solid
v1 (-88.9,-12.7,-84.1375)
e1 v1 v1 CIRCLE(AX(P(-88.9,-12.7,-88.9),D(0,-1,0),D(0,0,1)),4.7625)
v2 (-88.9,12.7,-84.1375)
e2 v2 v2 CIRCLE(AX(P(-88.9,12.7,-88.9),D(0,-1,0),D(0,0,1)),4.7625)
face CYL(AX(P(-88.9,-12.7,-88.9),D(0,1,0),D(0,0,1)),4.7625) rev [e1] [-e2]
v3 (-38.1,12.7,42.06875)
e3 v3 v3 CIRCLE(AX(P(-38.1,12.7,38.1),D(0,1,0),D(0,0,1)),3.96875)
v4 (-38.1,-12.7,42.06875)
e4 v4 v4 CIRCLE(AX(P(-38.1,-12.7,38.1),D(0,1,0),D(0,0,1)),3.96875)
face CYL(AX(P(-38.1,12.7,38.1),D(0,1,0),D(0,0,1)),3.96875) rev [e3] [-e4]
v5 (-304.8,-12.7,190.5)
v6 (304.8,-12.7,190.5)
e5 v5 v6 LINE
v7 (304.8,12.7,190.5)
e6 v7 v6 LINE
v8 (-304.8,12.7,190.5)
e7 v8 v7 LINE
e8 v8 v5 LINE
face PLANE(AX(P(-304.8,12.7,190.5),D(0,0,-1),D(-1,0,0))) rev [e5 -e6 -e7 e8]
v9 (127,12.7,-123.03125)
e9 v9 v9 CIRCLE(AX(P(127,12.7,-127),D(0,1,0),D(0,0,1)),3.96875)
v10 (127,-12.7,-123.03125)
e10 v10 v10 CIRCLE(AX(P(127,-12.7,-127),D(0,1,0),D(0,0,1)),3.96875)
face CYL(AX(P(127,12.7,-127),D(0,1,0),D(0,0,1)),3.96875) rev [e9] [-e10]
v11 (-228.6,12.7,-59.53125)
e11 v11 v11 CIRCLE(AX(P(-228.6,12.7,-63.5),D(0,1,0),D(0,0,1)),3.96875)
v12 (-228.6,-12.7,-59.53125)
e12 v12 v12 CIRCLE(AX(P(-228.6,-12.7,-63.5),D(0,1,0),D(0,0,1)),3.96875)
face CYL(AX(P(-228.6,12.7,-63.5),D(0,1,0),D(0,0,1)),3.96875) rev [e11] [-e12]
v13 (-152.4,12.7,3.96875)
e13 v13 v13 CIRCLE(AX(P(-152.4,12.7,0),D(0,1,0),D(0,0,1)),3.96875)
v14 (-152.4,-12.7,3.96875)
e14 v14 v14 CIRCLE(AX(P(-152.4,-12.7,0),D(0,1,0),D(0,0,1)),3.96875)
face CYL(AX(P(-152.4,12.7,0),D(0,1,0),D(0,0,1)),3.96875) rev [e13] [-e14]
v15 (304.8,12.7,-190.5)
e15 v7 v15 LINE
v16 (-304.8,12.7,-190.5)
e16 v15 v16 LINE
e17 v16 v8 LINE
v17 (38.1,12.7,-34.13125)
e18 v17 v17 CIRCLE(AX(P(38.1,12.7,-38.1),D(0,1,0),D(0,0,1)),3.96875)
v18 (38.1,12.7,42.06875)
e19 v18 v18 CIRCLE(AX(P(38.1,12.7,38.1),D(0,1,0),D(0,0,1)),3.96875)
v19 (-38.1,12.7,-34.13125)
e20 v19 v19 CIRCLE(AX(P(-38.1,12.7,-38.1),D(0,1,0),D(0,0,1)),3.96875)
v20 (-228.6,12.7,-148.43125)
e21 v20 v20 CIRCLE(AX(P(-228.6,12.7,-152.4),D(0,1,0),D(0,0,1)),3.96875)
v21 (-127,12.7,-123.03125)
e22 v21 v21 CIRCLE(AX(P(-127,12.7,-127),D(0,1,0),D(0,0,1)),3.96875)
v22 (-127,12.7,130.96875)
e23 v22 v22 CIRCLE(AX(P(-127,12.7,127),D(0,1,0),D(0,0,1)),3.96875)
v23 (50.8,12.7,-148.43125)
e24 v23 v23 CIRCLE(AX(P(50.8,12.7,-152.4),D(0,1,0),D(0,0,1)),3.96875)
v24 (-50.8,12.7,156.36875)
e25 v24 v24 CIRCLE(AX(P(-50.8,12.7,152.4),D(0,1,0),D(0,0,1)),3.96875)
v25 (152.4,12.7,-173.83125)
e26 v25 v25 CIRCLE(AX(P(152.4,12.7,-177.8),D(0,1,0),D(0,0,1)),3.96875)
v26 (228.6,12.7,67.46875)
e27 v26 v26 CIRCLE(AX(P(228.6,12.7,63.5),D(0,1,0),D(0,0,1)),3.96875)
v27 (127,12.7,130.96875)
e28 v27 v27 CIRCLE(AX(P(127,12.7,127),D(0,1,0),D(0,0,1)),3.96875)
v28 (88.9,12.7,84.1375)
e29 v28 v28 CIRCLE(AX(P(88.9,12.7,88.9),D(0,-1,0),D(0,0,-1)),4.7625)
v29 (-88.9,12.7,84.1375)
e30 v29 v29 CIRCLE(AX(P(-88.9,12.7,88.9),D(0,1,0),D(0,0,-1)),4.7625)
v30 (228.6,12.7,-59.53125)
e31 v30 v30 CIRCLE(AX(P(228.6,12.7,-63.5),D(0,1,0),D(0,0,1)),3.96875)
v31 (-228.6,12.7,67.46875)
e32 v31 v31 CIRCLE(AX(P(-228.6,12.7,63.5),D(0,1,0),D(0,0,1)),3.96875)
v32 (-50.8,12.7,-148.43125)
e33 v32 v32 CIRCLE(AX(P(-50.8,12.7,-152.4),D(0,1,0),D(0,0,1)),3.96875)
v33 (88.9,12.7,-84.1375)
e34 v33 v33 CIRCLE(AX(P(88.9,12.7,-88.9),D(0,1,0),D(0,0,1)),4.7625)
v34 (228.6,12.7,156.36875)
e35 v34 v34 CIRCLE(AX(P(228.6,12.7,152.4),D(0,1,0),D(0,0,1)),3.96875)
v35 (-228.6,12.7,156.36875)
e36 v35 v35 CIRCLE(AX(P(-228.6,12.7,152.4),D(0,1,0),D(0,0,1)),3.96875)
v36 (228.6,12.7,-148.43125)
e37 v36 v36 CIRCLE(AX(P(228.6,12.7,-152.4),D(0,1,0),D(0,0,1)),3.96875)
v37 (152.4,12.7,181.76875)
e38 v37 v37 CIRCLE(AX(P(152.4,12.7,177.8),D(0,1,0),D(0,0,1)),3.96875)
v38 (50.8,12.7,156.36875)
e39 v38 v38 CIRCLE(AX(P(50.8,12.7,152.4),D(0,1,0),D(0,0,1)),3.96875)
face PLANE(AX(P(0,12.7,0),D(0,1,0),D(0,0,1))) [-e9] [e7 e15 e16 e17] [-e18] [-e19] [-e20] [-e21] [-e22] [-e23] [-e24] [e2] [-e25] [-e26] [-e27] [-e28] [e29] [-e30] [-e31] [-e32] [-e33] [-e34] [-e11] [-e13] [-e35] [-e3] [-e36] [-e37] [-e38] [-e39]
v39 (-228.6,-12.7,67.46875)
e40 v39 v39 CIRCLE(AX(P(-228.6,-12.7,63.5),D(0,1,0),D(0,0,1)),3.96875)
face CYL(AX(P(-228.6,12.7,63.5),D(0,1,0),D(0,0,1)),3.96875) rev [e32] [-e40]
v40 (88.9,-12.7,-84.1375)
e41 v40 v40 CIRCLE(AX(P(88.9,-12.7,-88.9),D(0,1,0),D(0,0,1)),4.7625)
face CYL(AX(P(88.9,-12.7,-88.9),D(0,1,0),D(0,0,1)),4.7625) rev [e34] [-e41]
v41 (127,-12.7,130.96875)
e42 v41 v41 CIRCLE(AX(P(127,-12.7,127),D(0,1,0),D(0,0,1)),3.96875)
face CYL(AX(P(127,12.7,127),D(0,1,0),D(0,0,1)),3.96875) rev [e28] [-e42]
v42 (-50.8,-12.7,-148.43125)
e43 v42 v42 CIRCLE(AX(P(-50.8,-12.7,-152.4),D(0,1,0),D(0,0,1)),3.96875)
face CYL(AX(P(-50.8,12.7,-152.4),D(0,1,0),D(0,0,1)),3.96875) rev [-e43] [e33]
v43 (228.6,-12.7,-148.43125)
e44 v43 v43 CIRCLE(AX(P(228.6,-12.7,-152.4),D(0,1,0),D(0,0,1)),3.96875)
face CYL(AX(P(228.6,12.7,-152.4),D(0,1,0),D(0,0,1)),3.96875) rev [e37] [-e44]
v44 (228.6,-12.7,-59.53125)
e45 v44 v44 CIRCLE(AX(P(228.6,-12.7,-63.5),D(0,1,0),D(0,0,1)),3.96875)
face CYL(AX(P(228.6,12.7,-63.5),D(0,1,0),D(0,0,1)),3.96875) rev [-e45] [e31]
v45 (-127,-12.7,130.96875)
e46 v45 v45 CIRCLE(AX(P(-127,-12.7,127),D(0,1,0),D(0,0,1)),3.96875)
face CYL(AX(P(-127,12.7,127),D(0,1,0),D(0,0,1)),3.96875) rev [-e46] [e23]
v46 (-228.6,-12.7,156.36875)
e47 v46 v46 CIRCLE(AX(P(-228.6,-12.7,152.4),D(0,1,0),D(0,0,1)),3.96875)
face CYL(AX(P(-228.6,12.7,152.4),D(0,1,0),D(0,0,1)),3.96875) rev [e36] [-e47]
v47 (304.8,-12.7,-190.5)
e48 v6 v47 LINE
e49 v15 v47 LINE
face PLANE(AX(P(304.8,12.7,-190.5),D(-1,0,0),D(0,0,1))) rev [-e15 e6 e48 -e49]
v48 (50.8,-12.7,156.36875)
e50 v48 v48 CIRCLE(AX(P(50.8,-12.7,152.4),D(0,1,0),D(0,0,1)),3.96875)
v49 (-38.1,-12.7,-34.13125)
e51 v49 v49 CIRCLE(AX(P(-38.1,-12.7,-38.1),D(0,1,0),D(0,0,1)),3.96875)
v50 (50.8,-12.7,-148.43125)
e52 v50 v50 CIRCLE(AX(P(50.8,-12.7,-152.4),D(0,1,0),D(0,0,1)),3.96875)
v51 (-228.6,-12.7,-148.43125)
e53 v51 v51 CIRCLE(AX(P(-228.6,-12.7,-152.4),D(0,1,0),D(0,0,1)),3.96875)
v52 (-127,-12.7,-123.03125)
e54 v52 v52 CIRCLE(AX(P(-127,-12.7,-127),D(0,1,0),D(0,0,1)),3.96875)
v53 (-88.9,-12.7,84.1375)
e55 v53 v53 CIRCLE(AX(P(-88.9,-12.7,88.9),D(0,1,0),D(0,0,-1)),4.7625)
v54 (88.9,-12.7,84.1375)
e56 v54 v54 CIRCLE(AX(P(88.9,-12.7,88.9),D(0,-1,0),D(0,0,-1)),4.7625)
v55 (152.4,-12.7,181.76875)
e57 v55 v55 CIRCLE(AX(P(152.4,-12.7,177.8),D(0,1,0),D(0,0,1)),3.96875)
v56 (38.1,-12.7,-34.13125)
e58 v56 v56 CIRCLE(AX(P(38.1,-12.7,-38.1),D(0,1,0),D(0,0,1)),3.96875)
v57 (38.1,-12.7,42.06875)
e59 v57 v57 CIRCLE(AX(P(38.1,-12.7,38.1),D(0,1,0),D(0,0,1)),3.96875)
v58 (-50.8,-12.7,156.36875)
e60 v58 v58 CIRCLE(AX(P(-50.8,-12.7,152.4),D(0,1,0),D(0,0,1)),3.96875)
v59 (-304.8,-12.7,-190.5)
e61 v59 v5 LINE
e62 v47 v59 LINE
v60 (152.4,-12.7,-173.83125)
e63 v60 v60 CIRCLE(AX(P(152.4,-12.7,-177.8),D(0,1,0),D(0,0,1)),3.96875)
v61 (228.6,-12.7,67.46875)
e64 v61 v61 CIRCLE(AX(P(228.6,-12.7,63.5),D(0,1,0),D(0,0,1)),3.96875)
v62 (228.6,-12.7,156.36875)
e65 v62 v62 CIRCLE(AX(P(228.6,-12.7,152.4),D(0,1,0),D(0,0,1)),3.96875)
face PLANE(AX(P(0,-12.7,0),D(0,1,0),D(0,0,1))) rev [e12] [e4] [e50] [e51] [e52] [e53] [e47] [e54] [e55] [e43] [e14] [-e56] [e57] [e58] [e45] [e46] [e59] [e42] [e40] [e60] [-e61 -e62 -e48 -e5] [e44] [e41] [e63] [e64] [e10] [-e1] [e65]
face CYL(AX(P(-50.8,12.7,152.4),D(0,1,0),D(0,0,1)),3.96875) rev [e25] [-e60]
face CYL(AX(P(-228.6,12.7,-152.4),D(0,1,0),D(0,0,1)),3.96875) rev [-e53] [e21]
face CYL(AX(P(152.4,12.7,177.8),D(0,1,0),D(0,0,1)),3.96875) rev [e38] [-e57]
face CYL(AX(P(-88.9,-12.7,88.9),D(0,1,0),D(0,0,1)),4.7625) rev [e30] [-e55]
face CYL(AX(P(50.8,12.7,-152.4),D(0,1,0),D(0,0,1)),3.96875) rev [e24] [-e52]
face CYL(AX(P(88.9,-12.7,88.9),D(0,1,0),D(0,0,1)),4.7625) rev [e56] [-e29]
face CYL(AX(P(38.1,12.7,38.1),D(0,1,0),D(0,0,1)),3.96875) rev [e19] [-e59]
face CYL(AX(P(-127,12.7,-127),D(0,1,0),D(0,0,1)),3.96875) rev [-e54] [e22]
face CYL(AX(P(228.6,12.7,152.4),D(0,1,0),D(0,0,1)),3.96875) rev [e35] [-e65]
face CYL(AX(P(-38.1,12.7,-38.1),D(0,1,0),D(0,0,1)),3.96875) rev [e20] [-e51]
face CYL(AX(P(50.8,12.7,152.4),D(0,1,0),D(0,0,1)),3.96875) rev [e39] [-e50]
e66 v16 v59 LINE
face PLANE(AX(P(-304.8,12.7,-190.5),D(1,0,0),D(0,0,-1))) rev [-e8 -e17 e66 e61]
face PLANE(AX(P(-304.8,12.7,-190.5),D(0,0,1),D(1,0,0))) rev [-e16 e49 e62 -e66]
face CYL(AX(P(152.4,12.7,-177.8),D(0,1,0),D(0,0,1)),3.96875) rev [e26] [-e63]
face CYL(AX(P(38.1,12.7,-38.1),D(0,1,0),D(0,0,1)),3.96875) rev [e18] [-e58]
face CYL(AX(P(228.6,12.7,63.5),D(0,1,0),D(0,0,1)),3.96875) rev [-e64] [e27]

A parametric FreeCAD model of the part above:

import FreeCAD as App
import Part
import Sketcher
from FreeCAD import Vector
Q = App.Units.Quantity

doc = App.newDocument("Part")
body = doc.addObject("PartDesign::Body", "Body")

# Sketch on XZ plane
sketch1 = doc.addObject("Sketcher::SketchObject", "Sketch")
body.addObject(sketch1)
sketch1.AttachmentSupport = (doc.XZ_Plane, [""])
sketch1.MapMode = "FlatFace"
sketch1.addGeometry(Part.LineSegment(Vector(-305, -190, 0), Vector(-305, 190, 0)), False)
sketch1.addGeometry(Part.LineSegment(Vector(-305, 190, 0), Vector(305, 190, 0)), False)
sketch1.addGeometry(Part.LineSegment(Vector(305, 190, 0), Vector(305, -190, 0)), False)
sketch1.addGeometry(Part.LineSegment(Vector(305, -190, 0), Vector(-305, -190, 0)), False)
sketch1.addConstraint(Sketcher.Constraint("Coincident", 0, 2, 1, 1))
sketch1.addConstraint(Sketcher.Constraint("Coincident", 1, 2, 2, 1))
sketch1.addConstraint(Sketcher.Constraint("Coincident", 2, 2, 3, 1))
sketch1.addConstraint(Sketcher.Constraint("Coincident", 3, 2, 0, 1))
sketch1.addConstraint(Sketcher.Constraint("Vertical", 0))
sketch1.addConstraint(Sketcher.Constraint("Horizontal", 1))
sketch1.addConstraint(Sketcher.Constraint("Vertical", 2))
sketch1.addConstraint(Sketcher.Constraint("Horizontal", 3))
sketch1.addConstraint(Sketcher.Constraint("Symmetric", 0, 2, 2, 2, -1, 1))
sketch1.addConstraint(Sketcher.Constraint("DistanceX", 1, 1, 1, 2, Q("24 in")))
sketch1.addConstraint(Sketcher.Constraint("DistanceY", 0, 1, 0, 2, Q("15 in")))
pad1 = doc.addObject("PartDesign::Pad", "Pad")
body.addObject(pad1)
pad1.Profile = sketch1
pad1.Length = Q("1 in")
pad1.Midplane = True

# Sketch on XZ plane
sketch2 = doc.addObject("Sketcher::SketchObject", "Sketch001")
body.addObject(sketch2)
sketch2.AttachmentSupport = (doc.XZ_Plane, [""])
sketch2.MapMode = "FlatFace"
sketch2.AttachmentOffset = App.Placement(Vector(0, 0, -0.5 * 25.4), App.Rotation())
sketch2.addGeometry(Part.Circle(Vector(88.9, -88.9, 0), Vector(0, 0, 1), 4.8), False)
sketch2.addConstraint(Sketcher.Constraint("Diameter", 0, Q("0.375 in")))
sketch2.addConstraint(Sketcher.Constraint("DistanceX", -1, 1, 0, 3, Q("3.5 in")))
sketch2.addConstraint(Sketcher.Constraint("DistanceY", 0, 3, -1, 1, Q("3.5 in")))
pocket1 = doc.addObject("PartDesign::Pocket", "Pocket")
body.addObject(pocket1)
pocket1.Profile = sketch2
pocket1.Type = "ThroughAll"
pocket1.Reversed = True

# Sketch on XZ plane
sketch3 = doc.addObject("Sketcher::SketchObject", "Sketch002")
body.addObject(sketch3)
sketch3.AttachmentSupport = (doc.XZ_Plane, [""])
sketch3.MapMode = "FlatFace"
sketch3.AttachmentOffset = App.Placement(Vector(0, 0, -0.5 * 25.4), App.Rotation())
sketch3.addGeometry(Part.Circle(Vector(127, -127, 0), Vector(0, 0, 1), 4), False)
sketch3.addGeometry(Part.Circle(Vector(38.1, -38.1, 0), Vector(0, 0, 1), 4), False)
sketch3.addGeometry(Part.Circle(Vector(228.6, -63.5, 0), Vector(0, 0, 1), 4), False)
sketch3.addGeometry(Part.Circle(Vector(228.6, -152.4, 0), Vector(0, 0, 1), 4), False)
sketch3.addGeometry(Part.Circle(Vector(50.8, -152.4, 0), Vector(0, 0, 1), 4), False)
sketch3.addConstraint(Sketcher.Constraint("Equal", 0, 1))
sketch3.addConstraint(Sketcher.Constraint("Equal", 1, 2))
sketch3.addConstraint(Sketcher.Constraint("Equal", 2, 3))
sketch3.addConstraint(Sketcher.Constraint("Equal", 3, 4))
sketch3.addConstraint(Sketcher.Constraint("Horizontal", 3, 3, 4, 3))
sketch3.addConstraint(Sketcher.Constraint("Vertical", 2, 3, 3, 3))
sketch3.addConstraint(Sketcher.Constraint("Diameter", 0, Q("0.3125 in")))
sketch3.addConstraint(Sketcher.Constraint("DistanceX", -1, 1, 0, 3, Q("5 in")))
sketch3.addConstraint(Sketcher.Constraint("DistanceY", 0, 3, -1, 1, Q("5 in")))
sketch3.addConstraint(Sketcher.Constraint("DistanceX", -1, 1, 2, 3, Q("9 in")))
sketch3.addConstraint(Sketcher.Constraint("DistanceY", 3, 3, -1, 1, Q("6 in")))
sketch3.addConstraint(Sketcher.Constraint("DistanceX", -1, 1, 4, 3, Q("2 in")))
sketch3.addConstraint(Sketcher.Constraint("DistanceY", 2, 3, 1, 3, Q("1 in")))
sketch3.addConstraint(Sketcher.Constraint("DistanceX", -1, 1, 1, 3, Q("1.5 in")))
sketch3.addConstraint(Sketcher.Constraint("DistanceY", 1, 3, -1, 1, Q("1.5 in")))
doc.recompute()
hole = doc.addObject("PartDesign::Hole", "Hole")
body.addObject(hole)
hole.Profile = sketch3
hole.ThreadType = "None"
hole.Diameter = Q("0.3125 in")
hole.DepthType = "Dimension"
hole.Depth = 25.401
hole.DrillPoint = "Flat"
hole.Reversed = True

# Sketch on XZ plane
sketch4 = doc.addObject("Sketcher::SketchObject", "Sketch003")
body.addObject(sketch4)
sketch4.AttachmentSupport = (doc.XZ_Plane, [""])
sketch4.MapMode = "FlatFace"
sketch4.AttachmentOffset = App.Placement(Vector(0, 0, -0.5 * 25.4), App.Rotation())
sketch4.addGeometry(Part.Circle(Vector(152.4, -177.8, 0), Vector(0, 0, 1), 4), False)
sketch4.addGeometry(Part.Circle(Vector(152.4, 177.8, 0), Vector(0, 0, 1), 4), False)
sketch4.addGeometry(Part.Circle(Vector(-152.4, 0, 0), Vector(0, 0, 1), 4), False)
sketch4.addConstraint(Sketcher.Constraint("Equal", 0, 1))
sketch4.addConstraint(Sketcher.Constraint("Equal", 1, 2))
sketch4.addConstraint(Sketcher.Constraint("Symmetric", 0, 3, 1, 3, -1))
sketch4.addConstraint(Sketcher.Constraint("PointOnObject", 2, 3, -1))
sketch4.addConstraint(Sketcher.Constraint("Diameter", 0, Q("0.3125 in")))
sketch4.addConstraint(Sketcher.Constraint("DistanceX", -1, 1, 0, 3, Q("6 in")))
sketch4.addConstraint(Sketcher.Constraint("DistanceY", 0, 3, -1, 1, Q("7 in")))
sketch4.addConstraint(Sketcher.Constraint("DistanceX", 2, 3, -1, 1, Q("6 in")))
doc.recompute()
hole2 = doc.addObject("PartDesign::Hole", "Hole001")
body.addObject(hole2)
hole2.Profile = sketch4
hole2.ThreadType = "None"
hole2.Diameter = Q("0.3125 in")
hole2.DepthType = "Dimension"
hole2.Depth = Q("1 in")
hole2.DrillPoint = "Flat"
hole2.Reversed = True
doc.recompute()

mirrored = doc.addObject("PartDesign::Mirrored", "Mirrored")
body.addObject(mirrored)
mirrored.Originals = [pocket1, hole]
mirrored.MirrorPlane = (doc.XY_Plane, [""])
body.Tip = mirrored
doc.recompute()

mirrored2 = doc.addObject("PartDesign::Mirrored", "Mirrored001")
body.addObject(mirrored2)
mirrored2.Originals = [hole, pocket1]
mirrored2.MirrorPlane = (doc.YZ_Plane, [""])
body.Tip = mirrored2

# Sketch on XZ plane
sketch5 = doc.addObject("Sketcher::SketchObject", "Sketch004")
body.addObject(sketch5)
sketch5.AttachmentSupport = (doc.XZ_Plane, [""])
sketch5.MapMode = "FlatFace"
sketch5.AttachmentOffset = App.Placement(Vector(0, 0, -0.5 * 25.4), App.Rotation())
sketch5.addGeometry(Part.Circle(Vector(-88.9, 88.9, 0), Vector(0, 0, 1), 4.8), False)
sketch5.addConstraint(Sketcher.Constraint("Diameter", 0, Q("0.375 in")))
sketch5.addConstraint(Sketcher.Constraint("DistanceX", 0, 3, -1, 1, Q("3.5 in")))
sketch5.addConstraint(Sketcher.Constraint("DistanceY", -1, 1, 0, 3, Q("3.5 in")))
pocket2 = doc.addObject("PartDesign::Pocket", "Pocket001")
body.addObject(pocket2)
pocket2.Profile = sketch5
pocket2.Type = "ThroughAll"
pocket2.Reversed = True

# Sketch on XZ plane
sketch6 = doc.addObject("Sketcher::SketchObject", "Sketch005")
body.addObject(sketch6)
sketch6.AttachmentSupport = (doc.XZ_Plane, [""])
sketch6.MapMode = "FlatFace"
sketch6.AttachmentOffset = App.Placement(Vector(0, 0, -0.5 * 25.4), App.Rotation())
sketch6.addGeometry(Part.Circle(Vector(-127, 127, 0), Vector(0, 0, 1), 4), False)
sketch6.addGeometry(Part.Circle(Vector(-38.1, 38.1, 0), Vector(0, 0, 1), 4), False)
sketch6.addGeometry(Part.Circle(Vector(-228.6, 63.5, 0), Vector(0, 0, 1), 4), False)
sketch6.addGeometry(Part.Circle(Vector(-228.6, 152.4, 0), Vector(0, 0, 1), 4), False)
sketch6.addGeometry(Part.Circle(Vector(-50.8, 152.4, 0), Vector(0, 0, 1), 4), False)
sketch6.addConstraint(Sketcher.Constraint("Equal", 0, 1))
sketch6.addConstraint(Sketcher.Constraint("Equal", 1, 2))
sketch6.addConstraint(Sketcher.Constraint("Equal", 2, 3))
sketch6.addConstraint(Sketcher.Constraint("Equal", 3, 4))
sketch6.addConstraint(Sketcher.Constraint("Horizontal", 3, 3, 4, 3))
sketch6.addConstraint(Sketcher.Constraint("Vertical", 2, 3, 3, 3))
sketch6.addConstraint(Sketcher.Constraint("Diameter", 0, Q("0.3125 in")))
sketch6.addConstraint(Sketcher.Constraint("DistanceX", 0, 3, -1, 1, Q("5 in")))
sketch6.addConstraint(Sketcher.Constraint("DistanceY", -1, 1, 0, 3, Q("5 in")))
sketch6.addConstraint(Sketcher.Constraint("DistanceX", 2, 3, -1, 1, Q("9 in")))
sketch6.addConstraint(Sketcher.Constraint("DistanceY", -1, 1, 3, 3, Q("6 in")))
sketch6.addConstraint(Sketcher.Constraint("DistanceX", 4, 3, -1, 1, Q("2 in")))
sketch6.addConstraint(Sketcher.Constraint("DistanceY", 1, 3, 2, 3, Q("1 in")))
sketch6.addConstraint(Sketcher.Constraint("DistanceX", 1, 3, -1, 1, Q("1.5 in")))
sketch6.addConstraint(Sketcher.Constraint("DistanceY", -1, 1, 1, 3, Q("1.5 in")))
doc.recompute()
hole3 = doc.addObject("PartDesign::Hole", "Hole002")
body.addObject(hole3)
hole3.Profile = sketch6
hole3.ThreadType = "None"
hole3.Diameter = Q("0.3125 in")
hole3.DepthType = "Dimension"
hole3.Depth = 25.401
hole3.DrillPoint = "Flat"
hole3.Reversed = True

doc.recompute()
